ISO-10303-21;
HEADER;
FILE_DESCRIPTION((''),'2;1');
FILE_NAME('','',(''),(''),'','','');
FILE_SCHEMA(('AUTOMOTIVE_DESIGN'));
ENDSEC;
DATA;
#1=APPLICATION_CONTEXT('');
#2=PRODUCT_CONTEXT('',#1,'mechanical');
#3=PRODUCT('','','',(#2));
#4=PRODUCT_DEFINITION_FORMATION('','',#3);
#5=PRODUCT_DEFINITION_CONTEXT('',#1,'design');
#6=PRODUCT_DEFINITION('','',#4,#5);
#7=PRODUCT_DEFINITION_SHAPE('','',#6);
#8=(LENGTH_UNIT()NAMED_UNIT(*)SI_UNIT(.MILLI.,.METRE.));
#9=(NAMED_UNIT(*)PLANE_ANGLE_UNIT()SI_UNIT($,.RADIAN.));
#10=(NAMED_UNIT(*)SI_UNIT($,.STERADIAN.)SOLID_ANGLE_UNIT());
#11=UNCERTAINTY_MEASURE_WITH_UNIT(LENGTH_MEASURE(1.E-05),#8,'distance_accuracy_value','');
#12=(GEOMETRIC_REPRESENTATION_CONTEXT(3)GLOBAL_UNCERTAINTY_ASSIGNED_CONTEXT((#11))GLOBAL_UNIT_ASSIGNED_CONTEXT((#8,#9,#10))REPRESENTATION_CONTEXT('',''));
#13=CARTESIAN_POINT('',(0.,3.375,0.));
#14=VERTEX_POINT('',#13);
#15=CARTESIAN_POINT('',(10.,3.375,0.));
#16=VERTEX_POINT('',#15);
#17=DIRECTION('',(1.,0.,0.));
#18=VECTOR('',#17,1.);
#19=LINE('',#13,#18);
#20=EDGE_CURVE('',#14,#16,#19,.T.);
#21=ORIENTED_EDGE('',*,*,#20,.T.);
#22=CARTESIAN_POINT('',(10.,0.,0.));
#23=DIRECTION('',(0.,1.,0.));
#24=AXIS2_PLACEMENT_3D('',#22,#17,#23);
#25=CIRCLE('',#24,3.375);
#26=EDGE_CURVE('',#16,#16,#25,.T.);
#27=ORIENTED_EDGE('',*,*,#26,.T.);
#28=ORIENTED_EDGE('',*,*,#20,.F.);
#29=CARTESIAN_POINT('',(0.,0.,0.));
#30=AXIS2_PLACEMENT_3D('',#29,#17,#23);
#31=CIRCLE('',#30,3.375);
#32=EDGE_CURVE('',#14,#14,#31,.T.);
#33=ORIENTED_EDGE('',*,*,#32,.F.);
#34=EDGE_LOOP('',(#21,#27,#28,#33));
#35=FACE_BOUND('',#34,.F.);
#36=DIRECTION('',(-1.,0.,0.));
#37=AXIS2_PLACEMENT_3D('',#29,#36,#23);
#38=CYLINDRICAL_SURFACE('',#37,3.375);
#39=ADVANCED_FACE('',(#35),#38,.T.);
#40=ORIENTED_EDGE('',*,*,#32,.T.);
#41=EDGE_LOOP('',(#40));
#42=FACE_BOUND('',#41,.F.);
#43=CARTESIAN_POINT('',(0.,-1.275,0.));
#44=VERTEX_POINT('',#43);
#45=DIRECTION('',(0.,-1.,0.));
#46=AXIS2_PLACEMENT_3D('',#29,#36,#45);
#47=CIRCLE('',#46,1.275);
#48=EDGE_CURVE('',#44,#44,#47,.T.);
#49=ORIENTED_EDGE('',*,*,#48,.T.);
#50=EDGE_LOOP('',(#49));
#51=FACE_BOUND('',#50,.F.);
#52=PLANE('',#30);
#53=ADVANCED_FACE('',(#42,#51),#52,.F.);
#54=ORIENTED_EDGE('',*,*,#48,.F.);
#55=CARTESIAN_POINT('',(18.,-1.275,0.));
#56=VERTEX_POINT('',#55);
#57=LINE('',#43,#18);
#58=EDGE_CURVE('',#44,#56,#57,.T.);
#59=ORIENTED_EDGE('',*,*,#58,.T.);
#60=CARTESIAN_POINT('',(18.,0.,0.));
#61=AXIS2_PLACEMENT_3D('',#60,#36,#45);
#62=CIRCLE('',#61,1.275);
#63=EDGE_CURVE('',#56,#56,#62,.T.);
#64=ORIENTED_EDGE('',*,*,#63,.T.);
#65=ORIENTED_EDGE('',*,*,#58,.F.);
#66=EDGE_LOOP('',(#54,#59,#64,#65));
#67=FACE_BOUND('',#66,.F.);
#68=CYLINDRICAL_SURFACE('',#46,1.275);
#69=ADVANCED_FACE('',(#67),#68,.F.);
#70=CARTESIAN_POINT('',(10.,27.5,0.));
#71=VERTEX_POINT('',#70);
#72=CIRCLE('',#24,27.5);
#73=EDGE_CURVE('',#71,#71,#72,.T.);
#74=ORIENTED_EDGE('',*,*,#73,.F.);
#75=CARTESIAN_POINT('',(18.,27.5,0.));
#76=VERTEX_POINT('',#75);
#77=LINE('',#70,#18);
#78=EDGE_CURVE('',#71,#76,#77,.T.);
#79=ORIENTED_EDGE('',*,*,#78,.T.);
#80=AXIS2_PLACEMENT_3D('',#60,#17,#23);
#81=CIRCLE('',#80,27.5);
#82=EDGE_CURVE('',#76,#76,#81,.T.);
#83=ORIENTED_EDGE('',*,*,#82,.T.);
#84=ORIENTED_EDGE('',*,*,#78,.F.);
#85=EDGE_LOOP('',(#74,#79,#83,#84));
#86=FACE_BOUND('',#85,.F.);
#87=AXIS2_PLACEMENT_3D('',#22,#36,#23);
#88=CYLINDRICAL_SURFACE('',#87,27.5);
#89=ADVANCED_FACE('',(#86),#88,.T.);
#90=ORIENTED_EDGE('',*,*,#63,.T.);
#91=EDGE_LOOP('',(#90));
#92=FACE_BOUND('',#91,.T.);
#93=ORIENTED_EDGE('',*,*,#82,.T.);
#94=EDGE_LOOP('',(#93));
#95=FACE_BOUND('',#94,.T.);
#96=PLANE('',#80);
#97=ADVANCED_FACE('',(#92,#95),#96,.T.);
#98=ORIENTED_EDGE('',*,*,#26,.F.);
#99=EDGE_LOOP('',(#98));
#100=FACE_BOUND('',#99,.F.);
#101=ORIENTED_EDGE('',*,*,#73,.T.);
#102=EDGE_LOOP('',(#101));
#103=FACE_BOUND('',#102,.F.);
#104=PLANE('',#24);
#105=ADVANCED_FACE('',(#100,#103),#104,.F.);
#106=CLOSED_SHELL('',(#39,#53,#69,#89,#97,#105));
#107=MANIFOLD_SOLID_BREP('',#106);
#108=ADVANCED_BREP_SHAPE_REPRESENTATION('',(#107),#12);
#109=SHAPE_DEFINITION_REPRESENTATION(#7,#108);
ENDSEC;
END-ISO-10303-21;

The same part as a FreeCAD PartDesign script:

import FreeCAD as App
import Part
import Sketcher

V = App.Vector

doc = App.newDocument("Part")
body = doc.addObject("PartDesign::Body", "Body")

# Sketch on YZ plane
sketch1 = doc.addObject("Sketcher::SketchObject", "Sketch")
body.addObject(sketch1)
sketch1.AttachmentSupport = (doc.YZ_Plane, [""])
sketch1.MapMode = "FlatFace"
sketch1.addGeometry(Part.Circle(V(0, 0, 0), V(0, 0, 1), 3.4), False)
sketch1.addConstraint([
    Sketcher.Constraint("Coincident", 0, 3, -1, 1),
    Sketcher.Constraint("Diameter", 0, 6.75),
])
pad1 = doc.addObject("PartDesign::Pad", "Pad")
body.addObject(pad1)
pad1.Profile = sketch1
pad1.Length = 10

# Sketch on YZ plane
sketch2 = doc.addObject("Sketcher::SketchObject", "Sketch001")
body.addObject(sketch2)
sketch2.AttachmentSupport = (doc.YZ_Plane, [""])
sketch2.MapMode = "FlatFace"
sketch2.AttachmentOffset = App.Placement(V(0, 0, 10), App.Rotation())
sketch2.addGeometry(Part.Circle(V(0, 0, 0), V(0, 0, 1), 28), False)
sketch2.addConstraint([
    Sketcher.Constraint("Coincident", 0, 3, -1, 1),
    Sketcher.Constraint("Diameter", 0, 55.0),
])
pad2 = doc.addObject("PartDesign::Pad", "Pad001")
body.addObject(pad2)
pad2.Profile = sketch2
pad2.Length = 8

# Sketch on YZ plane
sketch3 = doc.addObject("Sketcher::SketchObject", "Sketch002")
body.addObject(sketch3)
sketch3.AttachmentSupport = (doc.YZ_Plane, [""])
sketch3.MapMode = "FlatFace"
sketch3.addGeometry(Part.Circle(V(0, 0, 0), V(0, 0, 1), 1.3), False)
sketch3.addConstraint([
    Sketcher.Constraint("Coincident", 0, 3, -1, 1),
    Sketcher.Constraint("Diameter", 0, 2.55),
])
pocket1 = doc.addObject("PartDesign::Pocket", "Pocket")
body.addObject(pocket1)
pocket1.Profile = sketch3
pocket1.Length = 25.4
pocket1.Reversed = True

doc.recompute()
